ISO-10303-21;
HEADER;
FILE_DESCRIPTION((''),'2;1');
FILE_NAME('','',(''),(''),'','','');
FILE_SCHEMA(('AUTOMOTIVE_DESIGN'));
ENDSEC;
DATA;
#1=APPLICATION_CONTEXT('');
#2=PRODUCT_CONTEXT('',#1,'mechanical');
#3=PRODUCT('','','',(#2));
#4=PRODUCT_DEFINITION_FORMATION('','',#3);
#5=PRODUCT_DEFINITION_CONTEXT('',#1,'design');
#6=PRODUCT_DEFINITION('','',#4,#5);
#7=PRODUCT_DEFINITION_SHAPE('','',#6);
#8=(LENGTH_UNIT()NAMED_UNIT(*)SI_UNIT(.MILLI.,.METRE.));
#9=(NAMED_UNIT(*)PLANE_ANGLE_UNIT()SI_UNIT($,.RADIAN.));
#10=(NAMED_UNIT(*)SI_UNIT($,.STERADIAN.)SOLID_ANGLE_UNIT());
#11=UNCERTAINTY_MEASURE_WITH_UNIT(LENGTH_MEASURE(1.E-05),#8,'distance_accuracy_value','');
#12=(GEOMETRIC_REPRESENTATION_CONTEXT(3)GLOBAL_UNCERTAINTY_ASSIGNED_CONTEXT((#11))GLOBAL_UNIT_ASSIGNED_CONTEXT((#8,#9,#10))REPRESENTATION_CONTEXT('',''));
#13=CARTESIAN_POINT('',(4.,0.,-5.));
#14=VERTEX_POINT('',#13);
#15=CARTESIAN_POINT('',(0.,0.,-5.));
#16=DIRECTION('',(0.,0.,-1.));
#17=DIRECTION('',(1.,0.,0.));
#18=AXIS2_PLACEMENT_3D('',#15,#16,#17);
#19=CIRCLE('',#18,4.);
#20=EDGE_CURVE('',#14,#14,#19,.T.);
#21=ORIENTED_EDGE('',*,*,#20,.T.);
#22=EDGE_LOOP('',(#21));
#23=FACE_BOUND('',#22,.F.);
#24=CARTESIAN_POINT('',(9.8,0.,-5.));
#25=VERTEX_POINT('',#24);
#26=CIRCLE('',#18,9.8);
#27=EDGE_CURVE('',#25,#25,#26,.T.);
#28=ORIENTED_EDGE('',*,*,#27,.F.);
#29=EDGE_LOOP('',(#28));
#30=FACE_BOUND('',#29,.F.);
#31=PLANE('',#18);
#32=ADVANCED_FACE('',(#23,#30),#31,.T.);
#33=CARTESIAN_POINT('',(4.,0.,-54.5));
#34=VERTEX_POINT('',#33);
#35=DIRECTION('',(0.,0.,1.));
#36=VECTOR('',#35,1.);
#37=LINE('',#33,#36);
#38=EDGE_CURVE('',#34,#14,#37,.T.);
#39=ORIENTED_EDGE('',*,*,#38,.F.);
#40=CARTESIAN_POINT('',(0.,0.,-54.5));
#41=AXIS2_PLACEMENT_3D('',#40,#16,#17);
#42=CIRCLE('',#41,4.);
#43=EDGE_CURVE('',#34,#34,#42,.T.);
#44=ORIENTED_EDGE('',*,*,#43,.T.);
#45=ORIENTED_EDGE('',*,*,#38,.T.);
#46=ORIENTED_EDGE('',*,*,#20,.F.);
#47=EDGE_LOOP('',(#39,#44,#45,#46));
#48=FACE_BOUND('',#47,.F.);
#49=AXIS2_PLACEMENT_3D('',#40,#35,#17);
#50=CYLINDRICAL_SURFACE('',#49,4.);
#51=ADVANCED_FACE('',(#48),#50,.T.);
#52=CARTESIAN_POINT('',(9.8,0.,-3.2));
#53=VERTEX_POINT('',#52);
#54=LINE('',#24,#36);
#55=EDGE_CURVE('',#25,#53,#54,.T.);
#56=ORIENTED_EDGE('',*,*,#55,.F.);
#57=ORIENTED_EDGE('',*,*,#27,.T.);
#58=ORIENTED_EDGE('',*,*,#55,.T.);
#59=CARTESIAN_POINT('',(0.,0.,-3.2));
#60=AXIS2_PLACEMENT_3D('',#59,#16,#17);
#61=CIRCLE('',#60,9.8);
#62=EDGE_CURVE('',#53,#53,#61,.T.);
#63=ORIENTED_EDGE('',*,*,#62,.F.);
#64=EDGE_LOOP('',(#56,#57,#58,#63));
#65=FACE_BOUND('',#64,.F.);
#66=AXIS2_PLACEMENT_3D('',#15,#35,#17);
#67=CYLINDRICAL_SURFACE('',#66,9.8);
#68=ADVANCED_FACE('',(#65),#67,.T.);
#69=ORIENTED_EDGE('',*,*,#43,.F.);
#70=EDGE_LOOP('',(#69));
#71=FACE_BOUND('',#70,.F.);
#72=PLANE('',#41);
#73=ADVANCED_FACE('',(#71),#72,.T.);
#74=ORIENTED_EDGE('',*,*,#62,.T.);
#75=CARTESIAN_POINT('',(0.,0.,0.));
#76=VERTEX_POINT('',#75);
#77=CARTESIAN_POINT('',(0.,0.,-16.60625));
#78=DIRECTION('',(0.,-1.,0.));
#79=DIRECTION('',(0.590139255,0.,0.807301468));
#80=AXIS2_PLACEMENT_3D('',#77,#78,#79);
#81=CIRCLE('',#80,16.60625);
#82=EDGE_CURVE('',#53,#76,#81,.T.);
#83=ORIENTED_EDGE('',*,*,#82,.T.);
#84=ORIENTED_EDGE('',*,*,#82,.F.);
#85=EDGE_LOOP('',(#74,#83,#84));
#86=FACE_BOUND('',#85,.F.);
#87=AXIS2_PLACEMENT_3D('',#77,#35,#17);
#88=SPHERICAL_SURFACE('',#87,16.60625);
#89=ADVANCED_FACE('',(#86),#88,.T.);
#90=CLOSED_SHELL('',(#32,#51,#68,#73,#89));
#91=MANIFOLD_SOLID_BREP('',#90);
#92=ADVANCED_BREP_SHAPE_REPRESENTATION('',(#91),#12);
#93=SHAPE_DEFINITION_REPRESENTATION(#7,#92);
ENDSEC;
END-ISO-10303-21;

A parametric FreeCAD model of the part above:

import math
import FreeCAD as App
import Part
import Sketcher

V = App.Vector

doc = App.newDocument("Part")
body = doc.addObject("PartDesign::Body", "Body")

# Sketch on XZ plane
sketch1 = body.newObject("Sketcher::SketchObject", "Sketch")
sketch1.AttachmentSupport = (doc.getObject("XZ_Plane"), [""])
sketch1.MapMode = "FlatFace"
sketch1.addGeometry(Part.ArcOfCircle(Part.Circle(V(0, -16.6, 0), V(0, 0, 1), 16.6), math.radians(54), math.radians(90)), False)
sketch1.addGeometry(Part.LineSegment(V(0, 0, 0), V(0, -54.5, 0)), False)
sketch1.addGeometry(Part.LineSegment(V(0, -54.5, 0), V(4, -54.5, 0)), False)
sketch1.addGeometry(Part.LineSegment(V(4, -54.5, 0), V(4, -5, 0)), False)
sketch1.addGeometry(Part.LineSegment(V(4, -5, 0), V(9.8, -5, 0)), False)
sketch1.addGeometry(Part.LineSegment(V(9.8, -5, 0), V(9.8, -3.2, 0)), False)
sketch1.addConstraint(Sketcher.Constraint("Coincident", 0, 2, 1, 1))
sketch1.addConstraint(Sketcher.Constraint("Coincident", 1, 2, 2, 1))
sketch1.addConstraint(Sketcher.Constraint("Coincident", 2, 2, 3, 1))
sketch1.addConstraint(Sketcher.Constraint("Coincident", 3, 2, 4, 1))
sketch1.addConstraint(Sketcher.Constraint("Coincident", 4, 2, 5, 1))
sketch1.addConstraint(Sketcher.Constraint("Coincident", 5, 2, 0, 1))
sketch1.addConstraint(Sketcher.Constraint("Vertical", 1))
sketch1.addConstraint(Sketcher.Constraint("Horizontal", 2))
sketch1.addConstraint(Sketcher.Constraint("Vertical", 3))
sketch1.addConstraint(Sketcher.Constraint("Horizontal", 4))
sketch1.addConstraint(Sketcher.Constraint("Vertical", 5))
sketch1.addConstraint(Sketcher.Constraint("Coincident", 0, 2, -1, 1))
sketch1.addConstraint(Sketcher.Constraint("PointOnObject", 0, 3, -2))
sketch1.addConstraint(Sketcher.Constraint("DistanceX", 2, 1, 2, 2, 4.0))
sketch1.addConstraint(Sketcher.Constraint("DistanceX", 4, 1, 4, 2, 5.8))
sketch1.addConstraint(Sketcher.Constraint("DistanceY", 1, 2, 1, 1, 54.5))
sketch1.addConstraint(Sketcher.Constraint("DistanceY", 3, 1, 3, 2, 49.5))
sketch1.addConstraint(Sketcher.Constraint("DistanceY", 5, 1, 5, 2, 1.8))
revolution = body.newObject("PartDesign::Revolution", "Revolution")
revolution.Profile = sketch1
revolution.ReferenceAxis = (sketch1, ["V_Axis"])
revolution.Angle = 360

doc.recompute()
